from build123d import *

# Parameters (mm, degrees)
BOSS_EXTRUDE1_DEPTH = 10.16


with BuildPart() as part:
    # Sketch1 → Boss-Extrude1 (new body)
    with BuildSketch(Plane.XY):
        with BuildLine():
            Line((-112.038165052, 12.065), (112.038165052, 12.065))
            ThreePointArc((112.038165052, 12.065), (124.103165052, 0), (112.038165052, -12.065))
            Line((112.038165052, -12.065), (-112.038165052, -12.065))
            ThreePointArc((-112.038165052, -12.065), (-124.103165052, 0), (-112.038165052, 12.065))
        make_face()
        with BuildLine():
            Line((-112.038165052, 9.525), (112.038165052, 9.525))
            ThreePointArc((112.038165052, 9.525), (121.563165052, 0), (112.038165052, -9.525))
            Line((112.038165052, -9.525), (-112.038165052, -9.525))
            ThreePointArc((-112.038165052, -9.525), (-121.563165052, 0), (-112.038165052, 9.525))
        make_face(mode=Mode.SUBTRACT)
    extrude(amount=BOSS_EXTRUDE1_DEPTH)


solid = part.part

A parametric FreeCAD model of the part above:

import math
import FreeCAD as App
import Part
import Sketcher
from FreeCAD import Vector
Q = App.Units.Quantity

doc = App.newDocument("Part")
body = doc.addObject("PartDesign::Body", "Body")

# Sketch on XY plane
sketch1 = body.newObject("Sketcher::SketchObject", "Sketch")
sketch1.AttachmentSupport = (doc.getObject("XY_Plane"), [""])
sketch1.MapMode = "FlatFace"
sketch1.addGeometry(Part.LineSegment(Vector(112, 12, 0), Vector(-112, 12, 0)), False)
sketch1.addGeometry(Part.ArcOfCircle(Part.Circle(Vector(-112, 0, 0), Vector(0, 0, 1), 12), math.radians(90), math.radians(270)), False)
sketch1.addGeometry(Part.LineSegment(Vector(-112, -12, 0), Vector(112, -12, 0)), False)
sketch1.addGeometry(Part.ArcOfCircle(Part.Circle(Vector(112, 0, 0), Vector(0, 0, 1), 12), math.radians(-90), math.radians(90)), False)
sketch1.addGeometry(Part.LineSegment(Vector(-112, 10, 0), Vector(112, 10, 0)), False)
sketch1.addGeometry(Part.ArcOfCircle(Part.Circle(Vector(112, 0, 0), Vector(0, 0, 1), 10), math.radians(-90), math.radians(90)), False)
sketch1.addGeometry(Part.LineSegment(Vector(112, -10, 0), Vector(-112, -10, 0)), False)
sketch1.addGeometry(Part.ArcOfCircle(Part.Circle(Vector(-112, 0, 0), Vector(0, 0, 1), 10), math.radians(90), math.radians(270)), False)
sketch1.addConstraint(Sketcher.Constraint("Tangent", 0, 2, 1, 1))
sketch1.addConstraint(Sketcher.Constraint("Tangent", 1, 2, 2, 1))
sketch1.addConstraint(Sketcher.Constraint("Tangent", 2, 2, 3, 1))
sketch1.addConstraint(Sketcher.Constraint("Tangent", 3, 2, 0, 1))
sketch1.addConstraint(Sketcher.Constraint("Tangent", 4, 2, 5, 2))
sketch1.addConstraint(Sketcher.Constraint("Tangent", 5, 1, 6, 1))
sketch1.addConstraint(Sketcher.Constraint("Tangent", 6, 2, 7, 2))
sketch1.addConstraint(Sketcher.Constraint("Tangent", 7, 1, 4, 1))
sketch1.addConstraint(Sketcher.Constraint("Horizontal", 0))
sketch1.addConstraint(Sketcher.Constraint("Horizontal", 2))
sketch1.addConstraint(Sketcher.Constraint("Horizontal", 4))
sketch1.addConstraint(Sketcher.Constraint("Horizontal", 6))
sketch1.addConstraint(Sketcher.Constraint("Coincident", 5, 3, 3, 3))
sketch1.addConstraint(Sketcher.Constraint("Symmetric", 1, 3, 3, 3, -1, 1))
sketch1.addConstraint(Sketcher.Constraint("Vertical", 7, 3, 0, 2))
sketch1.addConstraint(Sketcher.Constraint("Radius", 1, Q("0.475 in")))
sketch1.addConstraint(Sketcher.Constraint("Radius", 5, Q("0.375 in")))
sketch1.addConstraint(Sketcher.Constraint("DistanceX", 0, 2, 0, 1, Q("224.07633 mm")))
pad1 = body.newObject("PartDesign::Pad", "Pad")
pad1.Profile = sketch1
pad1.Length = Q("0.4 in")

doc.recompute()
